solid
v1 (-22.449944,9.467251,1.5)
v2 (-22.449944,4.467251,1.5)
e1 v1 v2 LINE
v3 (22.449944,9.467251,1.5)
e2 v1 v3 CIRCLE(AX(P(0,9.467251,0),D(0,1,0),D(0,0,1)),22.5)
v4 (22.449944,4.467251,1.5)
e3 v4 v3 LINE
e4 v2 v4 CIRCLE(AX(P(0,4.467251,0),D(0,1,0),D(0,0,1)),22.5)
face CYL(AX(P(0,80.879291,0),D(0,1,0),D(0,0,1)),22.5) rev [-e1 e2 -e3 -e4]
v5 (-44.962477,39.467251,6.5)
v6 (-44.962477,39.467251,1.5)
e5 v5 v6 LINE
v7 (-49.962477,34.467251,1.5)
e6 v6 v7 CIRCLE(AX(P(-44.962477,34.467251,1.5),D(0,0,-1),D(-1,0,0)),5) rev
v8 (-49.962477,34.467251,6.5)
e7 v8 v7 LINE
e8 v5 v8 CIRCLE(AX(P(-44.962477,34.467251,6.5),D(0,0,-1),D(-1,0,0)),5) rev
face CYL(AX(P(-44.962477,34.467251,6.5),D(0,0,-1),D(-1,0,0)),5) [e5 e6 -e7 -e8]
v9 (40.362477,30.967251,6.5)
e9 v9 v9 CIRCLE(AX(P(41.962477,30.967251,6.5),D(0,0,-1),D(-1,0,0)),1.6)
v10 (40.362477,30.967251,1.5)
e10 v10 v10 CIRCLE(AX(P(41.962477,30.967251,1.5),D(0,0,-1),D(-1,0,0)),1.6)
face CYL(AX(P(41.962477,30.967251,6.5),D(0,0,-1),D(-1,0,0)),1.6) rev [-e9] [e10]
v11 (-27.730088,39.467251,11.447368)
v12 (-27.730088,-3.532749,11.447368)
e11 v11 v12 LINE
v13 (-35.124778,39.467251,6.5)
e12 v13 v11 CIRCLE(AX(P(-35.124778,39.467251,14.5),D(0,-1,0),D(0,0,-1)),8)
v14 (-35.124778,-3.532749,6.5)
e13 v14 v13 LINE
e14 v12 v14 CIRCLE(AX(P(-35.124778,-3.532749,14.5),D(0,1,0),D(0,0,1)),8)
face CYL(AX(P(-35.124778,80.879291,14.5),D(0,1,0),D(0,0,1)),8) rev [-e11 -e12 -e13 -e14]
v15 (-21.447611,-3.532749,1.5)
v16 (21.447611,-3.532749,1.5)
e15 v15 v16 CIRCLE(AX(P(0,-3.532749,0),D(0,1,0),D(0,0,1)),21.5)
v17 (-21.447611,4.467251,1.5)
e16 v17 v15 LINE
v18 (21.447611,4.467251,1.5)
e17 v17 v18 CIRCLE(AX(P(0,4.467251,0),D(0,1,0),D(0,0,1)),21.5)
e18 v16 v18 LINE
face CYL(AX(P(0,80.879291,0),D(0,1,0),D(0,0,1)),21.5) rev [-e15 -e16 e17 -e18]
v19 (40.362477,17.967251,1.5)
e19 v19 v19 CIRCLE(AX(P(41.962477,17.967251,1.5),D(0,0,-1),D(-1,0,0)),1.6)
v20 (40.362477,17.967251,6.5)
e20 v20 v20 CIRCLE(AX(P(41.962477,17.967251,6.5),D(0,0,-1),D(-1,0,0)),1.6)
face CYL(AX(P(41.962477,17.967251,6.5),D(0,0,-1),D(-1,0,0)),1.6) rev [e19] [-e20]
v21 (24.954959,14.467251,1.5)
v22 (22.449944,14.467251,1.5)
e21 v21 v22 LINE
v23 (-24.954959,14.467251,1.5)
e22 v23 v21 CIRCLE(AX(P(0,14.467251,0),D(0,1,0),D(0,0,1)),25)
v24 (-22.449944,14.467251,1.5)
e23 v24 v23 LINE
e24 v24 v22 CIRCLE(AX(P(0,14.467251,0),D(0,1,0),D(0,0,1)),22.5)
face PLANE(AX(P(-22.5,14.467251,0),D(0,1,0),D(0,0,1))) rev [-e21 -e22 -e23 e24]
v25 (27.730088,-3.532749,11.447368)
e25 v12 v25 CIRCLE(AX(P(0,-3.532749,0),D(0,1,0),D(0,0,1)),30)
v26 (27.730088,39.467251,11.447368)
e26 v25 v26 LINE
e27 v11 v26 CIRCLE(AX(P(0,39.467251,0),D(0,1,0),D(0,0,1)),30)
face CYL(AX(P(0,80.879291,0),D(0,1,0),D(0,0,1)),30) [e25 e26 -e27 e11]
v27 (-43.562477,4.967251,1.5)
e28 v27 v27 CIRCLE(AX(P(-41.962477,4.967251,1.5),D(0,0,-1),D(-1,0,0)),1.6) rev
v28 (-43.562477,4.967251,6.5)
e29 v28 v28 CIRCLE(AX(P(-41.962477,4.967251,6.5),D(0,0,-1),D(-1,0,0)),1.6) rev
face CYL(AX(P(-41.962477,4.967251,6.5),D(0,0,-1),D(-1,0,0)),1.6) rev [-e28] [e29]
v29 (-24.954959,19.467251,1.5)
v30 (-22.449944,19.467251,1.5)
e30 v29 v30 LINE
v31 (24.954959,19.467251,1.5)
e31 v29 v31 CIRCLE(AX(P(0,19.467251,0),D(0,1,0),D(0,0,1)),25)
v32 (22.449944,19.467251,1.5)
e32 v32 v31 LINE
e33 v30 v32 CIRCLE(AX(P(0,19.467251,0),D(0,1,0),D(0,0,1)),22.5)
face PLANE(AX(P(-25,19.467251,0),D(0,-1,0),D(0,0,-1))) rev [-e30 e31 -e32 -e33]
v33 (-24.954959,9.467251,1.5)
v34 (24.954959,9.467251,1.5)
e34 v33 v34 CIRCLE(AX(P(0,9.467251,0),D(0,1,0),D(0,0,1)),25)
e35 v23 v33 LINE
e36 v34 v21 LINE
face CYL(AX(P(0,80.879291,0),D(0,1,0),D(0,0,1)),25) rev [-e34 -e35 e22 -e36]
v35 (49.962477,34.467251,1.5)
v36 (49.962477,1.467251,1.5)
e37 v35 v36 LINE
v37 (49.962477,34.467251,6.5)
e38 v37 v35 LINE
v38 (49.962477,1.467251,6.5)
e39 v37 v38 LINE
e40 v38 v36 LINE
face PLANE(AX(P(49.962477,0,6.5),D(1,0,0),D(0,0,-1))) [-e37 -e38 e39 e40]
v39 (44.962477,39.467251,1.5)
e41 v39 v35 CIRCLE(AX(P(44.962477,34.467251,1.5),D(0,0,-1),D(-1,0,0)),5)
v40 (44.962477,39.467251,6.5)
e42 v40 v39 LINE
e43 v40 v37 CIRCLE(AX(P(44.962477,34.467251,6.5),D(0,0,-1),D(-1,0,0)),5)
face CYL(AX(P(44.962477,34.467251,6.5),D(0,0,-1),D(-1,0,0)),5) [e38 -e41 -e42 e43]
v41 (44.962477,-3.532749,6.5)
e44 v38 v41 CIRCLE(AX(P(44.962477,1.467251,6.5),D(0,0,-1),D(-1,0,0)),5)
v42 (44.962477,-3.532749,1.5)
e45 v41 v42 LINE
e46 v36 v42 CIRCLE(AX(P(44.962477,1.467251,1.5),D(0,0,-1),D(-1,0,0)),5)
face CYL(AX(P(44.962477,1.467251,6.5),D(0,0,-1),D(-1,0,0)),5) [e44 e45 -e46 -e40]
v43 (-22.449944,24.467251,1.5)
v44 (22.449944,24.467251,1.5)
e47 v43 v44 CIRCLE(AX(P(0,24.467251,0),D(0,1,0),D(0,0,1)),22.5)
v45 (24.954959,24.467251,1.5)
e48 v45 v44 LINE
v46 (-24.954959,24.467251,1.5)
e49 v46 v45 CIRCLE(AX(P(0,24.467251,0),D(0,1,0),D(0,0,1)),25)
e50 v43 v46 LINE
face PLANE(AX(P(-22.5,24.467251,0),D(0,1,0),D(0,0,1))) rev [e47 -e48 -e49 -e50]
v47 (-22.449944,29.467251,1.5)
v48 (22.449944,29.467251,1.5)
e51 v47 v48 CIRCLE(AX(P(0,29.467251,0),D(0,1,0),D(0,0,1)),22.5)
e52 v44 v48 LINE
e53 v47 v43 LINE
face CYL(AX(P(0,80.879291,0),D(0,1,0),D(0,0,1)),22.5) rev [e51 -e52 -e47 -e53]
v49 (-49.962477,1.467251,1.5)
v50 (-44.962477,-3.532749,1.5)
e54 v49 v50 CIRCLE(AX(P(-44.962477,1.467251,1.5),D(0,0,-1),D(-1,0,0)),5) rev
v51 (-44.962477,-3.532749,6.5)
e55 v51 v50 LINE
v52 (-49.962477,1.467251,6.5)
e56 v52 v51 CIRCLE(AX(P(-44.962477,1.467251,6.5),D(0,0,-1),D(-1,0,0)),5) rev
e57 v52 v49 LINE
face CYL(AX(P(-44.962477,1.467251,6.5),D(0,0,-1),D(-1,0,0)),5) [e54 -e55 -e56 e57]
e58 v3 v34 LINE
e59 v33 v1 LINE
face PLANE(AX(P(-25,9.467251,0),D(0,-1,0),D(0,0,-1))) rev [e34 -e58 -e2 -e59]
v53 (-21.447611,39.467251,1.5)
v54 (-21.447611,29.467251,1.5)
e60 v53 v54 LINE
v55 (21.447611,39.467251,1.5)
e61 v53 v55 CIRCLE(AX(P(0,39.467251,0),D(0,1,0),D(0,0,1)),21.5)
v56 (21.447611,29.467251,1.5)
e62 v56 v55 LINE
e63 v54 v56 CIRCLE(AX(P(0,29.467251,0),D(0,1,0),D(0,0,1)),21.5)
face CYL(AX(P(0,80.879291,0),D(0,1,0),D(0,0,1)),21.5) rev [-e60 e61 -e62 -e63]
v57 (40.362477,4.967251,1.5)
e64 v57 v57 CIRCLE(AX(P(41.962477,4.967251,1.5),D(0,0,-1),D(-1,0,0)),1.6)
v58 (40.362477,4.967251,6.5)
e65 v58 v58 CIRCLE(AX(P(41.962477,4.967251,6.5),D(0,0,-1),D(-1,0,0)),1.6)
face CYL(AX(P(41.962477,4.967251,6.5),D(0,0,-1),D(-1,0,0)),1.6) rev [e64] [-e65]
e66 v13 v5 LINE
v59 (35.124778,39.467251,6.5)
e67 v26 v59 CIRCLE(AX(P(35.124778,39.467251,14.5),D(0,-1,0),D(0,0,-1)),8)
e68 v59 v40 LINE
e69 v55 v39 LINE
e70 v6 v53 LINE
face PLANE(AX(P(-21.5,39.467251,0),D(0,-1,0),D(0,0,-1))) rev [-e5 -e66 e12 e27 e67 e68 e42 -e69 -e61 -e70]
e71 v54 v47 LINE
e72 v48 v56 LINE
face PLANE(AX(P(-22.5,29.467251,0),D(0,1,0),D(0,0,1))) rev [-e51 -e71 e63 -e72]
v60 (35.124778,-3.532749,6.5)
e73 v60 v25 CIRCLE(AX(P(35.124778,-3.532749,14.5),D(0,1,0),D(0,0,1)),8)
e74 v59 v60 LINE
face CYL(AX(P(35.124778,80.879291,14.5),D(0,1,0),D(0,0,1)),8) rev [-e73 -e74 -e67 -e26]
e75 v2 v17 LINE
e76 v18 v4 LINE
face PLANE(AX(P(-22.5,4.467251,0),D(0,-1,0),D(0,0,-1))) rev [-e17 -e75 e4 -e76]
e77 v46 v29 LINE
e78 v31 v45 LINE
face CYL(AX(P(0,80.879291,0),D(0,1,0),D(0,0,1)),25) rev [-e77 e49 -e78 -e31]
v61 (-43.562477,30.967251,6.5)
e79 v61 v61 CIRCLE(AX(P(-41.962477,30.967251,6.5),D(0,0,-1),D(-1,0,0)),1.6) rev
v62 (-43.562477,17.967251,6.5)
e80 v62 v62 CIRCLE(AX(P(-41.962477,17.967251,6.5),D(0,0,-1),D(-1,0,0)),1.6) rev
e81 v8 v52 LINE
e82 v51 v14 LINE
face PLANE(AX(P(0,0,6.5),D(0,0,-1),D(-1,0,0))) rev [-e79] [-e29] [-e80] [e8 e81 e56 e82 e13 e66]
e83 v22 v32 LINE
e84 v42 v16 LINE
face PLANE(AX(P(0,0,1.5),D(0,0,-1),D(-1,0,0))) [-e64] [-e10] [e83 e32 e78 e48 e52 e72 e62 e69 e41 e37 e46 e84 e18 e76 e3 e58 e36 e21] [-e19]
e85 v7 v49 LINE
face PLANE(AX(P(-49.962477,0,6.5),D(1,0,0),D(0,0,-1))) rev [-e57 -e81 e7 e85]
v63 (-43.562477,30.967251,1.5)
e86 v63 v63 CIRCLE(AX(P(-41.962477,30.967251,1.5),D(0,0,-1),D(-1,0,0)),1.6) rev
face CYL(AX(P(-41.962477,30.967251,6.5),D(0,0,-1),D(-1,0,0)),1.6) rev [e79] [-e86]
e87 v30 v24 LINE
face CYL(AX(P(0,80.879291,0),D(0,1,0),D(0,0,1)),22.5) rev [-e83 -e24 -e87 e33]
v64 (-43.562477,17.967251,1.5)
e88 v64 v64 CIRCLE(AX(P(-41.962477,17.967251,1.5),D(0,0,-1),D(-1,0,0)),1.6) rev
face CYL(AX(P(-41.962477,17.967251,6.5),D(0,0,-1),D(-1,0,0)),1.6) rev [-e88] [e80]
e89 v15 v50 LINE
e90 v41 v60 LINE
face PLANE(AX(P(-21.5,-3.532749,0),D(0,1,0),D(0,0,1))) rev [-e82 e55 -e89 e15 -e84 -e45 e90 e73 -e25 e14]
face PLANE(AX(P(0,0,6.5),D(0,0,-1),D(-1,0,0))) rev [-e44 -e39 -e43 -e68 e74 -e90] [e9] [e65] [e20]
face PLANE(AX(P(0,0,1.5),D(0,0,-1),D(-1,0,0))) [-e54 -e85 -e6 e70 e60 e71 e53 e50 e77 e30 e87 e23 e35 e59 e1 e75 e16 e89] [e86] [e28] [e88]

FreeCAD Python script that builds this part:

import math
import FreeCAD as App
import Part
import Sketcher

V = App.Vector


def edges_at(feature, points):
    """Names of the edges that pass closest to the given points."""
    edges = feature.Shape.Edges
    near = lambda p: min(range(len(edges)), key=lambda i: edges[i].distToShape(Part.Vertex(*p))[0])
    return sorted({f"Edge{near(p) + 1}" for p in points})


def add_polygon(sketch, points):
    """Adds a closed chain of lines whose ends are joined by coincident constraints."""
    first, n = sketch.GeometryCount, len(points)
    for a, b in zip(points, points[1:] + points[:1]):
        sketch.addGeometry(Part.LineSegment(App.Vector(*a, 0), App.Vector(*b, 0)), False)
    for i in range(n):
        sketch.addConstraint(Sketcher.Constraint("Coincident", first + i, 2, first + (i + 1) % n, 1))

doc = App.newDocument("Part")
params = doc.addObject("Spreadsheet::Sheet", "Params")
for row, (alias, value) in enumerate([
    ("sketch1_width", "1 mm"),
    ("sketch1_height", "5 mm"),
    ("sketch1_height2", "8 mm"),
    ("sketch1_height3", "43 mm"),
    ("sketch1_width2", "2.5 mm"),
    ("revolution_angle", "180 deg"),
    ("pocket1_length", "1.5 mm"),
    ("sketch3_radius", "5 mm"),
    ("sketch3_diameter", "3.2 mm"),
    ("sketch3_width", "18 mm"),
    ("sketch3_height", "33 mm"),
    ("pad1_length", "5 mm"),
    ("fillet_radius", "8 mm"),
], start=1):
    params.set(f"A{row}", alias)
    params.set(f"B{row}", "=" + value)
    params.setAlias(f"B{row}", alias)

body = doc.addObject("PartDesign::Body", "Body")

# Sketch on XY plane
sketch1 = body.newObject("Sketcher::SketchObject", "Sketch")
sketch1.AttachmentSupport = (doc.getObject("XY_Plane"), [""])
sketch1.MapMode = "FlatFace"
add_polygon(sketch1, [(21.5, 29.5), (22.5, 29.5), (22.5, 24.5), (25, 24.5), (25, 19.5), (22.5, 19.5), (22.5, 14.5), (25, 14.5), (25, 9.5), (22.5, 9.5), (22.5, 4.5), (21.5, 4.5), (21.5, -3.5), (30, -3.5), (30, 39.5), (21.5, 39.5)])  # lines 0-15
sketch1.addConstraint([
    Sketcher.Constraint("Horizontal", 0),
    Sketcher.Constraint("Vertical", 1),
    Sketcher.Constraint("Horizontal", 2),
    Sketcher.Constraint("Vertical", 3),
    Sketcher.Constraint("Horizontal", 4),
    Sketcher.Constraint("Vertical", 5),
    Sketcher.Constraint("Horizontal", 6),
    Sketcher.Constraint("Vertical", 7),
    Sketcher.Constraint("Horizontal", 8),
    Sketcher.Constraint("Vertical", 9),
    Sketcher.Constraint("Horizontal", 10),
    Sketcher.Constraint("Vertical", 11),
    Sketcher.Constraint("Horizontal", 12),
    Sketcher.Constraint("Vertical", 13),
    Sketcher.Constraint("Horizontal", 14),
    Sketcher.Constraint("Vertical", 15),
    Sketcher.Constraint("Vertical", 1, 2, 4, 2),
    Sketcher.Constraint("Vertical", 3, 2, 6, 2),
    Sketcher.Constraint("Vertical", 5, 2, 8, 2),
    Sketcher.Constraint("Vertical", 11, 2, 14, 2),
    Sketcher.Constraint("Equal", 1, 3),
    Sketcher.Constraint("Equal", 3, 5),
    Sketcher.Constraint("Equal", 5, 7),
    Sketcher.Constraint("Equal", 7, 9),
    Sketcher.Constraint("DistanceX", 0, 1, 0, 2, 1.0),
    Sketcher.Constraint("DistanceY", 1, 2, 1, 1, 5.0),
    Sketcher.Constraint("DistanceY", 11, 2, 11, 1, 8.0),
    Sketcher.Constraint("DistanceY", 13, 1, 13, 2, 43.0),
    Sketcher.Constraint("DistanceX", 2, 1, 2, 2, 2.5),
    Sketcher.Constraint("DistanceX", 12, 1, 12, 2, 8.5),
    Sketcher.Constraint("DistanceX", -1, 1, 2, 2, 25.0),
    Sketcher.Constraint("DistanceY", -1, 1, 0, 2, 29.467251),
])
sketch1.setExpression("Constraints[40]", "Params.sketch1_width")
sketch1.setExpression("Constraints[41]", "Params.sketch1_height")
sketch1.setExpression("Constraints[42]", "Params.sketch1_height2")
sketch1.setExpression("Constraints[43]", "Params.sketch1_height3")
sketch1.setExpression("Constraints[44]", "Params.sketch1_width2")
revolution = body.newObject("PartDesign::Revolution", "Revolution")
revolution.Profile = sketch1
revolution.ReferenceAxis = (sketch1, ["V_Axis"])
revolution.setExpression("Angle", "Params.revolution_angle")
revolution.Reversed = True

# Sketch on XY plane
sketch2 = body.newObject("Sketcher::SketchObject", "Sketch001")
sketch2.AttachmentSupport = (doc.getObject("XY_Plane"), [""])
sketch2.MapMode = "FlatFace"
add_polygon(sketch2, [(40, 52), (40, -17), (-42, -17), (-42, 52)])  # lines 0-3
sketch2.addConstraint([
    Sketcher.Constraint("Vertical", 0),
    Sketcher.Constraint("Horizontal", 1),
    Sketcher.Constraint("Vertical", 2),
    Sketcher.Constraint("Horizontal", 3),
    Sketcher.Constraint("DistanceX", 1, 2, 1, 1, 82.60436),
    Sketcher.Constraint("DistanceY", -1, 1, 2, 2, 52.2425),
    Sketcher.Constraint("DistanceY", 0, 2, 0, 1, 69.359353),
    Sketcher.Constraint("DistanceX", -1, 1, 0, 2, 40.190004),
])
pocket1 = body.newObject("PartDesign::Pocket", "Pocket")
pocket1.Profile = sketch2
pocket1.setExpression("Length", "Params.pocket1_length")
pocket1.Reversed = True

# Sketch on XY plane
sketch3 = body.newObject("Sketcher::SketchObject", "Sketch002")
sketch3.AttachmentSupport = (doc.getObject("XY_Plane"), [""])
sketch3.MapMode = "FlatFace"
sketch3.AttachmentOffset = App.Placement(V(0, 0, 1.5), App.Rotation())
sketch3.addGeometry([
    Part.ArcOfCircle(Part.Circle(V(-45, 1.5, 0), V(0, 0, 1), 5), math.radians(180), math.radians(270)),  # 0
    Part.LineSegment(V(-50, 1.5, 0), V(-50, 34.5, 0)),  # 1
    Part.ArcOfCircle(Part.Circle(V(-45, 34.5, 0), V(0, 0, 1), 5), math.radians(90), math.radians(180)),  # 2
    Part.LineSegment(V(-45, 39.5, 0), V(-27, 39.5, 0)),  # 3
    Part.LineSegment(V(-27, 39.5, 0), V(-27, -3.5, 0)),  # 4
    Part.LineSegment(V(-27, -3.5, 0), V(-45, -3.5, 0)),  # 5
    Part.Circle(V(-42, 5, 0), V(0, 0, 1), 1.6),  # 6
    Part.Circle(V(-42, 18, 0), V(0, 0, 1), 1.6),  # 7
    Part.Circle(V(-42, 31, 0), V(0, 0, 1), 1.6),  # 8
    Part.ArcOfCircle(Part.Circle(V(45, 34.5, 0), V(0, 0, 1), 5), math.radians(0), math.radians(90)),  # 9
    Part.LineSegment(V(50, 34.5, 0), V(50, 1.5, 0)),  # 10
    Part.ArcOfCircle(Part.Circle(V(45, 1.5, 0), V(0, 0, 1), 5), math.radians(-90), math.radians(0)),  # 11
    Part.LineSegment(V(45, -3.5, 0), V(27, -3.5, 0)),  # 12
    Part.LineSegment(V(27, -3.5, 0), V(27, 39.5, 0)),  # 13
    Part.LineSegment(V(27, 39.5, 0), V(45, 39.5, 0)),  # 14
    Part.Circle(V(42, 5, 0), V(0, 0, 1), 1.6),  # 15
    Part.Circle(V(42, 18, 0), V(0, 0, 1), 1.6),  # 16
    Part.Circle(V(42, 31, 0), V(0, 0, 1), 1.6),  # 17
], False)
sketch3.addConstraint([
    Sketcher.Constraint("Tangent", 0, 1, 1, 1),
    Sketcher.Constraint("Tangent", 1, 2, 2, 2),
    Sketcher.Constraint("Tangent", 2, 1, 3, 1),
    Sketcher.Constraint("Coincident", 3, 2, 4, 1),
    Sketcher.Constraint("Coincident", 4, 2, 5, 1),
    Sketcher.Constraint("Tangent", 5, 2, 0, 2),
    Sketcher.Constraint("Tangent", 9, 1, 10, 1),
    Sketcher.Constraint("Tangent", 10, 2, 11, 2),
    Sketcher.Constraint("Tangent", 11, 1, 12, 1),
    Sketcher.Constraint("Coincident", 12, 2, 13, 1),
    Sketcher.Constraint("Coincident", 13, 2, 14, 1),
    Sketcher.Constraint("Tangent", 14, 2, 9, 2),
    Sketcher.Constraint("Vertical", 1),
    Sketcher.Constraint("Horizontal", 3),
    Sketcher.Constraint("Vertical", 4),
    Sketcher.Constraint("Horizontal", 5),
    Sketcher.Constraint("Vertical", 10),
    Sketcher.Constraint("Horizontal", 12),
    Sketcher.Constraint("Vertical", 13),
    Sketcher.Constraint("Horizontal", 14),
    Sketcher.Constraint("Equal", 0, 2),
    Sketcher.Constraint("Equal", 6, 7),
    Sketcher.Constraint("Equal", 7, 8),
    Sketcher.Constraint("Equal", 2, 9),
    Sketcher.Constraint("Equal", 9, 11),
    Sketcher.Constraint("Equal", 8, 15),
    Sketcher.Constraint("Equal", 15, 16),
    Sketcher.Constraint("Equal", 16, 17),
    Sketcher.Constraint("Symmetric", 2, 3, 9, 3, -2),
    Sketcher.Constraint("Symmetric", 6, 3, 15, 3, -2),
    Sketcher.Constraint("Symmetric", 7, 3, 16, 3, -2),
    Sketcher.Constraint("Symmetric", 8, 3, 17, 3, -2),
    Sketcher.Constraint("Symmetric", 4, 2, 12, 2, -2),
    Sketcher.Constraint("Vertical", 6, 3, 7, 3),
    Sketcher.Constraint("Vertical", 7, 3, 8, 3),
    Sketcher.Constraint("Radius", 0, 5.0),
    Sketcher.Constraint("Diameter", 6, 3.2),
    Sketcher.Constraint("DistanceX", 3, 1, 3, 2, 18.0),
    Sketcher.Constraint("DistanceY", 1, 1, 1, 2, 33.0),
    Sketcher.Constraint("DistanceX", 0, 3, 6, 3, 3.0),
    Sketcher.Constraint("DistanceY", 6, 3, 7, 3, 13.0),
    Sketcher.Constraint("DistanceY", 7, 3, 8, 3, 13.0),
    Sketcher.Constraint("DistanceY", 0, 3, 6, 3, 3.5),
    Sketcher.Constraint("DistanceY", -1, 1, 0, 3, 1.467251),
    Sketcher.Constraint("DistanceX", 0, 3, -1, 1, 44.962477),
])
sketch3.setExpression("Constraints[35]", "Params.sketch3_radius")
sketch3.setExpression("Constraints[36]", "Params.sketch3_diameter")
sketch3.setExpression("Constraints[37]", "Params.sketch3_width")
sketch3.setExpression("Constraints[38]", "Params.sketch3_height")
pad1 = body.newObject("PartDesign::Pad", "Pad")
pad1.Profile = sketch3
pad1.setExpression("Length", "Params.pad1_length")
doc.recompute()

fillet = body.newObject("PartDesign::Fillet", "Fillet")
fillet.Base = (pad1, edges_at(pad1, [(-29.287, 17.967, 6.5), (29.287, 17.967, 6.5)]))
fillet.setExpression("Radius", "Params.fillet_radius")

doc.recompute()
